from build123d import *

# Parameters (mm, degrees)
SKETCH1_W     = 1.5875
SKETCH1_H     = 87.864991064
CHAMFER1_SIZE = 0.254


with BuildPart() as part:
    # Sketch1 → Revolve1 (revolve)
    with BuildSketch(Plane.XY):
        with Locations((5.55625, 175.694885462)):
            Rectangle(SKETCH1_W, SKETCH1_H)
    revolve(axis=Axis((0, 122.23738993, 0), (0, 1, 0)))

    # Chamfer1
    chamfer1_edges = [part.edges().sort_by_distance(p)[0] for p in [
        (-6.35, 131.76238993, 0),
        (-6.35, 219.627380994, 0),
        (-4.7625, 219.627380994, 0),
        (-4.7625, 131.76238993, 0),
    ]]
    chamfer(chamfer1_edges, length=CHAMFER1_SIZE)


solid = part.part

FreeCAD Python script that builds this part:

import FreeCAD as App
import Part
import Sketcher
from FreeCAD import Vector
Q = App.Units.Quantity


def edges_at(feature, points):
    """Names of the edges that pass closest to the given points."""
    edges = feature.Shape.Edges
    near = lambda p: min(range(len(edges)), key=lambda i: edges[i].distToShape(Part.Vertex(*p))[0])
    return sorted({f"Edge{near(p) + 1}" for p in points})


def add_polygon(sketch, points):
    """Adds a closed chain of lines whose ends are joined by coincident constraints."""
    first, n = sketch.GeometryCount, len(points)
    for a, b in zip(points, points[1:] + points[:1]):
        sketch.addGeometry(Part.LineSegment(App.Vector(*a, 0), App.Vector(*b, 0)), False)
    for i in range(n):
        sketch.addConstraint(Sketcher.Constraint("Coincident", first + i, 2, first + (i + 1) % n, 1))

doc = App.newDocument("Part")
body = doc.addObject("PartDesign::Body", "Body")

# Sketch on XY plane
sketch1 = doc.addObject("Sketcher::SketchObject", "Sketch")
body.addObject(sketch1)
sketch1.AttachmentSupport = (doc.XY_Plane, [""])
sketch1.MapMode = "FlatFace"
add_polygon(sketch1, [(4.7625, 219.627381), (4.7625, 131.76239), (6.35, 131.76239), (6.35, 219.627381)])  # lines 0-3
sketch1.addConstraint(Sketcher.Constraint("Vertical", 0))
sketch1.addConstraint(Sketcher.Constraint("Horizontal", 1))
sketch1.addConstraint(Sketcher.Constraint("Vertical", 2))
sketch1.addConstraint(Sketcher.Constraint("Horizontal", 3))
sketch1.addConstraint(Sketcher.Constraint("DistanceX", 1, 1, 1, 2, Q("0.0625 in")))
sketch1.addConstraint(Sketcher.Constraint("DistanceX", -1, 1, 1, 2, Q("0.25 in")))
sketch1.addConstraint(Sketcher.Constraint("DistanceY", 0, 2, 0, 1, 87.864991))
sketch1.addConstraint(Sketcher.Constraint("DistanceY", -1, 1, 0, 2, 131.76239))
revolution = doc.addObject("PartDesign::Revolution", "Revolution")
body.addObject(revolution)
revolution.Profile = sketch1
revolution.ReferenceAxis = (sketch1, ["V_Axis"])
revolution.Angle = 360
doc.recompute()

chamfer = doc.addObject("PartDesign::Chamfer", "Chamfer")
body.addObject(chamfer)
chamfer.Base = (revolution, edges_at(revolution, [
    (-6.35, 131.762, 0),
    (-6.35, 219.627, 0),
    (-4.763, 219.627, 0),
    (-4.763, 131.762, 0),
]))
chamfer.Size = Q("0.01 in")

doc.recompute()
